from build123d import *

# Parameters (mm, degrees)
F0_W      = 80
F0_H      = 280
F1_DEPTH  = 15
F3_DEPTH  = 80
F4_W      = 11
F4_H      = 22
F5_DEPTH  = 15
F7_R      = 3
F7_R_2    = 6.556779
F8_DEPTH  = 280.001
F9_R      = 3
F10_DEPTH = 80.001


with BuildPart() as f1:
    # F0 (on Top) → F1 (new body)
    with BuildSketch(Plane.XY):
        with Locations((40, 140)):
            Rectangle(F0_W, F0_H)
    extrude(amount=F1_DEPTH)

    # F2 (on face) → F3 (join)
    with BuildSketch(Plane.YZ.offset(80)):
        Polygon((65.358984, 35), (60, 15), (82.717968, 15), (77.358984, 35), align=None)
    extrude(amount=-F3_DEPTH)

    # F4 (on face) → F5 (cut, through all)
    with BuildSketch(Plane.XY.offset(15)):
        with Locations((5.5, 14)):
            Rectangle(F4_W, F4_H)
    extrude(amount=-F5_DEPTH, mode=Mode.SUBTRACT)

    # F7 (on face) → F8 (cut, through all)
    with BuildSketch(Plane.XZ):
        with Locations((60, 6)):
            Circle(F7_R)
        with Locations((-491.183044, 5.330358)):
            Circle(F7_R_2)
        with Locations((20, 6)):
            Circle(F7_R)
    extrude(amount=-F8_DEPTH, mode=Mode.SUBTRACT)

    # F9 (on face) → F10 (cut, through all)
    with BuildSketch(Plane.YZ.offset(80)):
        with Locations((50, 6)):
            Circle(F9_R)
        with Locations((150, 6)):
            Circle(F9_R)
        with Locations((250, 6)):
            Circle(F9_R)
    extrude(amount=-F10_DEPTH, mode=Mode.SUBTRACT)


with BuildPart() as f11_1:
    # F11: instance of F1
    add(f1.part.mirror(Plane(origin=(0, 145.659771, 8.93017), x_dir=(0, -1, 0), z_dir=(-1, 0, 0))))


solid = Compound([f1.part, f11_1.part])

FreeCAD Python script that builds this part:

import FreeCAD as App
import Part
import Sketcher
Q = App.Units.Quantity

doc = App.newDocument("Part")
body = doc.addObject("PartDesign::Body", "Body")

sketch1 = doc.addObject("Sketcher::SketchObject", "Sketch")
body.addObject(sketch1)
sketch1.AttachmentSupport = (doc.XY_Plane, [""])
sketch1.MapMode = "FlatFace"
sketch1.addGeometry([
    Part.LineSegment(App.Vector(0, 280, 0), App.Vector(0, 0, 0)),
    Part.LineSegment(App.Vector(0, 0, 0), App.Vector(80, 0, 0)),
    Part.LineSegment(App.Vector(80, 0, 0), App.Vector(80, 280, 0)),
    Part.LineSegment(App.Vector(80, 280, 0), App.Vector(0, 280, 0)),
], False)
sketch1.addConstraint([
    Sketcher.Constraint("Coincident", 0, 2, 1, 1),
    Sketcher.Constraint("Coincident", 1, 2, 2, 1),
    Sketcher.Constraint("Coincident", 2, 2, 3, 1),
    Sketcher.Constraint("Coincident", 3, 2, 0, 1),
    Sketcher.Constraint("Vertical", 0),
    Sketcher.Constraint("Horizontal", 1),
    Sketcher.Constraint("Vertical", 2),
    Sketcher.Constraint("Horizontal", 3),
    Sketcher.Constraint("Coincident", 0, 2, -1, 1),
    Sketcher.Constraint("DistanceX", 1, 1, 1, 2, 80.0),
    Sketcher.Constraint("DistanceY", 0, 2, 0, 1, 280.0),
])
pad1 = doc.addObject("PartDesign::Pad", "Pad")
body.addObject(pad1)
pad1.Profile = sketch1
pad1.Length = 15

sketch2 = doc.addObject("Sketcher::SketchObject", "Sketch001")
body.addObject(sketch2)
sketch2.AttachmentSupport = (doc.YZ_Plane, [""])
sketch2.MapMode = "FlatFace"
sketch2.AttachmentOffset = App.Placement(App.Vector(0, 0, 80), App.Rotation())
sketch2.addGeometry([
    Part.LineSegment(App.Vector(65, 35, 0), App.Vector(60, 15, 0)),
    Part.LineSegment(App.Vector(60, 15, 0), App.Vector(83, 15, 0)),
    Part.LineSegment(App.Vector(83, 15, 0), App.Vector(77, 35, 0)),
    Part.LineSegment(App.Vector(77, 35, 0), App.Vector(65, 35, 0)),
], False)
sketch2.addConstraint([
    Sketcher.Constraint("Coincident", 0, 2, 1, 1),
    Sketcher.Constraint("Coincident", 1, 2, 2, 1),
    Sketcher.Constraint("Coincident", 2, 2, 3, 1),
    Sketcher.Constraint("Coincident", 3, 2, 0, 1),
    Sketcher.Constraint("Horizontal", 1),
    Sketcher.Constraint("Horizontal", 3),
    Sketcher.Constraint("Equal", 0, 2),
    Sketcher.Constraint("DistanceX", 3, 2, 3, 1, 12.0),
    Sketcher.Constraint("Angle", 0, Q("-105 deg")),
    Sketcher.Constraint("DistanceX", -1, 1, 0, 2, 60.0),
    Sketcher.Constraint("DistanceY", -1, 1, 0, 2, 15.0),
    Sketcher.Constraint("DistanceY", -1, 1, 2, 2, 35.0),
])
pad2 = doc.addObject("PartDesign::Pad", "Pad001")
body.addObject(pad2)
pad2.Profile = sketch2
pad2.Length = 80
pad2.Reversed = True

sketch3 = doc.addObject("Sketcher::SketchObject", "Sketch002")
body.addObject(sketch3)
sketch3.AttachmentSupport = (doc.XY_Plane, [""])
sketch3.MapMode = "FlatFace"
sketch3.AttachmentOffset = App.Placement(App.Vector(0, 0, 15), App.Rotation())
sketch3.addGeometry([
    Part.LineSegment(App.Vector(0, 25, 0), App.Vector(0, 3, 0)),
    Part.LineSegment(App.Vector(0, 3, 0), App.Vector(11, 3, 0)),
    Part.LineSegment(App.Vector(11, 3, 0), App.Vector(11, 25, 0)),
    Part.LineSegment(App.Vector(11, 25, 0), App.Vector(0, 25, 0)),
], False)
sketch3.addConstraint([
    Sketcher.Constraint("Coincident", 0, 2, 1, 1),
    Sketcher.Constraint("Coincident", 1, 2, 2, 1),
    Sketcher.Constraint("Coincident", 2, 2, 3, 1),
    Sketcher.Constraint("Coincident", 3, 2, 0, 1),
    Sketcher.Constraint("Vertical", 0),
    Sketcher.Constraint("Horizontal", 1),
    Sketcher.Constraint("Vertical", 2),
    Sketcher.Constraint("Horizontal", 3),
    Sketcher.Constraint("PointOnObject", 0, 2, -2),
    Sketcher.Constraint("DistanceX", 1, 1, 1, 2, 11.0),
    Sketcher.Constraint("DistanceY", 0, 2, 0, 1, 22.0),
    Sketcher.Constraint("DistanceY", -1, 1, 0, 2, 3.0),
])
pocket1 = doc.addObject("PartDesign::Pocket", "Pocket")
body.addObject(pocket1)
pocket1.Profile = sketch3
pocket1.Type = "ThroughAll"

sketch4 = doc.addObject("Sketcher::SketchObject", "Sketch003")
body.addObject(sketch4)
sketch4.AttachmentSupport = (doc.XZ_Plane, [""])
sketch4.MapMode = "FlatFace"
sketch4.addGeometry([
    Part.Circle(App.Vector(60, 6, 0), App.Vector(0, 0, 1), 3),
    Part.Circle(App.Vector(-491.2, 5.3, 0), App.Vector(0, 0, 1), 6.6),
    Part.Circle(App.Vector(20, 6, 0), App.Vector(0, 0, 1), 3),
], False)
sketch4.addConstraint([
    Sketcher.Constraint("Equal", 0, 2),
    Sketcher.Constraint("Horizontal", 0, 3, 2, 3),
    Sketcher.Constraint("Diameter", 0, 6.0),
    Sketcher.Constraint("DistanceX", -1, 1, 0, 3, 60.0),
    Sketcher.Constraint("DistanceY", -1, 1, 0, 3, 6.0),
    Sketcher.Constraint("DistanceX", -1, 1, 2, 3, 20.0),
    Sketcher.Constraint("Diameter", 1, 13.113558),
    Sketcher.Constraint("DistanceY", -1, 1, 1, 3, 5.330358),
    Sketcher.Constraint("DistanceX", 1, 3, -1, 1, 491.183044),
])
pocket2 = doc.addObject("PartDesign::Pocket", "Pocket001")
body.addObject(pocket2)
pocket2.Profile = sketch4
pocket2.Type = "ThroughAll"

sketch5 = doc.addObject("Sketcher::SketchObject", "Sketch004")
body.addObject(sketch5)
sketch5.AttachmentSupport = (doc.YZ_Plane, [""])
sketch5.MapMode = "FlatFace"
sketch5.AttachmentOffset = App.Placement(App.Vector(0, 0, 80), App.Rotation())
sketch5.addGeometry([
    Part.Circle(App.Vector(50, 6, 0), App.Vector(0, 0, 1), 3),
    Part.Circle(App.Vector(150, 6, 0), App.Vector(0, 0, 1), 3),
    Part.Circle(App.Vector(250, 6, 0), App.Vector(0, 0, 1), 3),
], False)
sketch5.addConstraint([
    Sketcher.Constraint("Equal", 0, 1),
    Sketcher.Constraint("Equal", 1, 2),
    Sketcher.Constraint("Horizontal", 0, 3, 1, 3),
    Sketcher.Constraint("Horizontal", 1, 3, 2, 3),
    Sketcher.Constraint("Diameter", 0, 6.0),
    Sketcher.Constraint("DistanceX", -1, 1, 0, 3, 50.0),
    Sketcher.Constraint("DistanceY", -1, 1, 0, 3, 6.0),
    Sketcher.Constraint("DistanceX", -1, 1, 1, 3, 150.0),
    Sketcher.Constraint("DistanceX", -1, 1, 2, 3, 250.0),
])
pocket3 = doc.addObject("PartDesign::Pocket", "Pocket002")
body.addObject(pocket3)
pocket3.Profile = sketch5
pocket3.Type = "ThroughAll"
body2 = doc.addObject("PartDesign::Body", "Body001")
doc.recompute()

mirroring = doc.addObject("Part::Mirroring", "Mirroring")
mirroring.Source = body
mirroring.Base = App.Vector(0, 145.659771, 8.93017)
mirroring.Normal = App.Vector(-1, 0, 0)
body2.BaseFeature = mirroring
doc.recompute()
mirroring.Visibility = False

doc.recompute()
